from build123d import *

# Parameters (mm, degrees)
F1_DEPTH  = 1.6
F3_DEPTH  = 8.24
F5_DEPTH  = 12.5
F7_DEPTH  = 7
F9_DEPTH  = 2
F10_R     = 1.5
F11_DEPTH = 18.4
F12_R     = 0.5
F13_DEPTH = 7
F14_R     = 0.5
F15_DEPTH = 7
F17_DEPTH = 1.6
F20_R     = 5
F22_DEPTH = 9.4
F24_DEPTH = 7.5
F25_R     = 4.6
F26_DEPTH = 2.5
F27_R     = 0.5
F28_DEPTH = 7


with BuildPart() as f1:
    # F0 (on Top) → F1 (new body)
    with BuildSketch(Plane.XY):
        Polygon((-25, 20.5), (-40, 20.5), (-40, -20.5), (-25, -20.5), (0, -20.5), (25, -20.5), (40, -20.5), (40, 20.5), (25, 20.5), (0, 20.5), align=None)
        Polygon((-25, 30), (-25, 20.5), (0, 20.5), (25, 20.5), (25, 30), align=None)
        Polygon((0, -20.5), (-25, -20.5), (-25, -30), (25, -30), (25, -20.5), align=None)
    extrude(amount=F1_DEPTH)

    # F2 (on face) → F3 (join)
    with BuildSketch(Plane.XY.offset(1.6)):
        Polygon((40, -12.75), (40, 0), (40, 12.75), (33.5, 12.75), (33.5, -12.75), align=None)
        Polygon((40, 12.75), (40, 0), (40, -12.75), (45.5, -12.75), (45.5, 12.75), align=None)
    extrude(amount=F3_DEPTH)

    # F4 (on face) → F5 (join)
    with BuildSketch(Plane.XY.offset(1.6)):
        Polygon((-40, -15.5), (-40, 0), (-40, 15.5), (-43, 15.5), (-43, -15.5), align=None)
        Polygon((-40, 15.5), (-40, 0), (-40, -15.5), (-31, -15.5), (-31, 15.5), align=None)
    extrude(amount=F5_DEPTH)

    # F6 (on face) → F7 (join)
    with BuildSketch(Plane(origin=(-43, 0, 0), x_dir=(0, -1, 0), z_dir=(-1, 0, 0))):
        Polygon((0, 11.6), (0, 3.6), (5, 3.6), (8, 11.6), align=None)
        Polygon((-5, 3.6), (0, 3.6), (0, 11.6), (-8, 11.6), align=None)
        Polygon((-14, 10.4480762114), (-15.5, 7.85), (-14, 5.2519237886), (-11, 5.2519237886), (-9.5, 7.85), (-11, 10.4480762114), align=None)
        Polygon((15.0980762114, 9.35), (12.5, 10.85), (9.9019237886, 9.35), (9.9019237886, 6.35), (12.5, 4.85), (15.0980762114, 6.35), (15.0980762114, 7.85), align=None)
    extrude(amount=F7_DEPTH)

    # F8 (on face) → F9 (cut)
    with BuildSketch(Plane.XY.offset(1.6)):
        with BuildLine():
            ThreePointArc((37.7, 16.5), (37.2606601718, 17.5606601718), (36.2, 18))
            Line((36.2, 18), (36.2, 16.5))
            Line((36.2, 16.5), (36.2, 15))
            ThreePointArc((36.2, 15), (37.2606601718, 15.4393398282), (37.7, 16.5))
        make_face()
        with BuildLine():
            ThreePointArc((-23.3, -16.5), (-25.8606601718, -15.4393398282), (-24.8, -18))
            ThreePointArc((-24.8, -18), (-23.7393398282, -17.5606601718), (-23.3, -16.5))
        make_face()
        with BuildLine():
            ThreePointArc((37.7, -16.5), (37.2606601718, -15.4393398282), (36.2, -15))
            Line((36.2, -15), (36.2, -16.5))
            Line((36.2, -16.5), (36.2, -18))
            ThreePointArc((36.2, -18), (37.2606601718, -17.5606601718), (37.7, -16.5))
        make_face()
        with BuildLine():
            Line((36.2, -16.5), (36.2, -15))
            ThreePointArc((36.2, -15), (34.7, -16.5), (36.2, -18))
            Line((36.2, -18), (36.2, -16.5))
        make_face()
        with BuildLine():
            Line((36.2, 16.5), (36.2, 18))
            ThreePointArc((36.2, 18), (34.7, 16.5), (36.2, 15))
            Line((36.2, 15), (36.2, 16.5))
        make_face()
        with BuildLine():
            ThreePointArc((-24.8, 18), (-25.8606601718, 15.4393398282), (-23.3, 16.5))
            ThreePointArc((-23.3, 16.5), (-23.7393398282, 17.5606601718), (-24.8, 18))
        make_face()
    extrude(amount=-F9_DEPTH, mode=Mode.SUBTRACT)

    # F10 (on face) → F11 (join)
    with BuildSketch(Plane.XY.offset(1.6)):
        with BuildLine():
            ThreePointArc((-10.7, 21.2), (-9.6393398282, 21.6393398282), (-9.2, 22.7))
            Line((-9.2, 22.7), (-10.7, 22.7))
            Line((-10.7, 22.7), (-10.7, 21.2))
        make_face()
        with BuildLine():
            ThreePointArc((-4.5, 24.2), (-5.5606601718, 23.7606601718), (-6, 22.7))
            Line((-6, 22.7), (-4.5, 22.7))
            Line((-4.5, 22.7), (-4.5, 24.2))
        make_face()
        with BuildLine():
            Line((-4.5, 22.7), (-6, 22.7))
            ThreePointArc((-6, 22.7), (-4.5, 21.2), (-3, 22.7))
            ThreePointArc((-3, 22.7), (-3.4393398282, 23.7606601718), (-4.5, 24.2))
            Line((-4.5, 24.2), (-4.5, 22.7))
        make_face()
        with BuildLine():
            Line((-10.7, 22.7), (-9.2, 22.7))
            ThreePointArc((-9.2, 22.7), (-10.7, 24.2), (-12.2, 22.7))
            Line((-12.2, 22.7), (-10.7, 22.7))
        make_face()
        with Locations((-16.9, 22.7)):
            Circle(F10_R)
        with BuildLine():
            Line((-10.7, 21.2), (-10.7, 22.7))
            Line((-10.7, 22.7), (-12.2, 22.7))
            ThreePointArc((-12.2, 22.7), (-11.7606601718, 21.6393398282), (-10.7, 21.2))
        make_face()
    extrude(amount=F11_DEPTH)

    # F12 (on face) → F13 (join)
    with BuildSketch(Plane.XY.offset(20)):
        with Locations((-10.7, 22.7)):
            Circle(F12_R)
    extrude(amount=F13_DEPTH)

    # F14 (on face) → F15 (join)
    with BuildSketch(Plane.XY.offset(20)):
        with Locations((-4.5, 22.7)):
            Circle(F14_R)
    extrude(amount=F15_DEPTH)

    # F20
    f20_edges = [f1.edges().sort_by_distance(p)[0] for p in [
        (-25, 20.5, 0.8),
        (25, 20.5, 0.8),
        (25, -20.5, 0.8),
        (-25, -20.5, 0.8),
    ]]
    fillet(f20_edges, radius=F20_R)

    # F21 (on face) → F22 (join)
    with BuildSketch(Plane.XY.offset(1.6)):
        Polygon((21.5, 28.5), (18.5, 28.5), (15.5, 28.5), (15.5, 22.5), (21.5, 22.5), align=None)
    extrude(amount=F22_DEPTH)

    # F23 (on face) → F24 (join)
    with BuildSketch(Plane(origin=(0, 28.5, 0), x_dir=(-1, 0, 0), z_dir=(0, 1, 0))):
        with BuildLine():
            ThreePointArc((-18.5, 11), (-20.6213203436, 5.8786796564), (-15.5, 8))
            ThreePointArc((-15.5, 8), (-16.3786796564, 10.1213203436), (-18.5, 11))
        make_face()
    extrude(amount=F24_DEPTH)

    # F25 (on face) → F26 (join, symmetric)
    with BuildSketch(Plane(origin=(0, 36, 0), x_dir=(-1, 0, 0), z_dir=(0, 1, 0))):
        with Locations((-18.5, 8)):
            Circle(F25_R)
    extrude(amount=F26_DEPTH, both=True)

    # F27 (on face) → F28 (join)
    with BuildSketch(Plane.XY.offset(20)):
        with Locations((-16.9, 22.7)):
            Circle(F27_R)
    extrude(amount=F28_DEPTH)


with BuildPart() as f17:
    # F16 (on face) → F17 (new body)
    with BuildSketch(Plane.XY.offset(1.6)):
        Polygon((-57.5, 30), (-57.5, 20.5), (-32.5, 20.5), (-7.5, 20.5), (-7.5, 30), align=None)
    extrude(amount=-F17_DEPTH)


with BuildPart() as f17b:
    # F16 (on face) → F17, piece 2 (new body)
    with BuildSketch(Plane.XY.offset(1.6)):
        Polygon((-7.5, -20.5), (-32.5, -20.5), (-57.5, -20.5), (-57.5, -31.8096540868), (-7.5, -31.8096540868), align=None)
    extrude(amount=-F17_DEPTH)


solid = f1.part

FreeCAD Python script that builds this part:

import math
import FreeCAD as App
import Part
import Sketcher
Q = App.Units.Quantity


def edges_at(feature, points):
    """Names of the edges that pass closest to the given points."""
    edges = feature.Shape.Edges
    near = lambda p: min(range(len(edges)), key=lambda i: edges[i].distToShape(Part.Vertex(*p))[0])
    return sorted({f"Edge{near(p) + 1}" for p in points})


def add_polygon(sketch, points):
    """Adds a closed chain of lines whose ends are joined by coincident constraints."""
    first, n = sketch.GeometryCount, len(points)
    for a, b in zip(points, points[1:] + points[:1]):
        sketch.addGeometry(Part.LineSegment(App.Vector(*a, 0), App.Vector(*b, 0)), False)
    for i in range(n):
        sketch.addConstraint(Sketcher.Constraint("Coincident", first + i, 2, first + (i + 1) % n, 1))

doc = App.newDocument("Part")
body = doc.addObject("PartDesign::Body", "Body")

# Sketch on XY plane
sketch1 = doc.addObject("Sketcher::SketchObject", "Sketch")
body.addObject(sketch1)
sketch1.AttachmentSupport = (doc.XY_Plane, [""])
sketch1.MapMode = "FlatFace"
add_polygon(sketch1, [(-40, 20), (-40, -20), (-25, -20), (-25, -30), (25, -30), (25, -20), (40, -20), (40, 20), (25, 20), (25, 30), (-25, 30), (-25, 20)])  # lines 0-11
sketch1.addConstraint([
    Sketcher.Constraint("Vertical", 0),
    Sketcher.Constraint("Horizontal", 1),
    Sketcher.Constraint("Vertical", 2),
    Sketcher.Constraint("Horizontal", 3),
    Sketcher.Constraint("Vertical", 4),
    Sketcher.Constraint("Horizontal", 5),
    Sketcher.Constraint("Vertical", 6),
    Sketcher.Constraint("Horizontal", 7),
    Sketcher.Constraint("Vertical", 8),
    Sketcher.Constraint("Horizontal", 9),
    Sketcher.Constraint("Vertical", 10),
    Sketcher.Constraint("Horizontal", 11),
    Sketcher.Constraint("Symmetric", 0, 2, 6, 2, -1, 1),
    Sketcher.Constraint("Symmetric", 2, 2, 8, 2, -1, 1),
    Sketcher.Constraint("Symmetric", 4, 2, 10, 2, -1, 1),
    Sketcher.Constraint("Symmetric", 1, 2, 4, 2, -2),
    Sketcher.Constraint("DistanceX", 1, 1, 1, 2, Q("15 mm")),
    Sketcher.Constraint("DistanceX", 3, 1, 3, 2, Q("50 mm")),
    Sketcher.Constraint("DistanceY", 0, 2, 0, 1, Q("41 mm")),
    Sketcher.Constraint("DistanceY", 2, 2, 2, 1, Q("9.5 mm")),
])
pad1 = doc.addObject("PartDesign::Pad", "Pad")
body.addObject(pad1)
pad1.Profile = sketch1
pad1.Length = 1.6

# Sketch on XY plane
sketch2 = doc.addObject("Sketcher::SketchObject", "Sketch001")
body.addObject(sketch2)
sketch2.AttachmentSupport = (doc.XY_Plane, [""])
sketch2.MapMode = "FlatFace"
sketch2.AttachmentOffset = App.Placement(App.Vector(0, 0, 1.6), App.Rotation())
add_polygon(sketch2, [(34, 13), (34, -13), (46, -13), (46, 13)])  # lines 0-3
sketch2.addConstraint([
    Sketcher.Constraint("Vertical", 0),
    Sketcher.Constraint("Horizontal", 1),
    Sketcher.Constraint("Vertical", 2),
    Sketcher.Constraint("Horizontal", 3),
    Sketcher.Constraint("DistanceX", 1, 1, 1, 2, Q("12 mm")),
    Sketcher.Constraint("DistanceY", 0, 2, 0, 1, Q("25.5 mm")),
    Sketcher.Constraint("DistanceX", -1, 1, 0, 2, Q("33.5 mm")),
    Sketcher.Constraint("DistanceY", 0, 2, -1, 1, Q("12.75 mm")),
])
pad2 = doc.addObject("PartDesign::Pad", "Pad001")
body.addObject(pad2)
pad2.Profile = sketch2
pad2.Length = 8.24

# Sketch on XY plane
sketch3 = doc.addObject("Sketcher::SketchObject", "Sketch002")
body.addObject(sketch3)
sketch3.AttachmentSupport = (doc.XY_Plane, [""])
sketch3.MapMode = "FlatFace"
sketch3.AttachmentOffset = App.Placement(App.Vector(0, 0, 1.6), App.Rotation())
add_polygon(sketch3, [(-43, 16), (-43, -16), (-31, -16), (-31, 16)])  # lines 0-3
sketch3.addConstraint([
    Sketcher.Constraint("Vertical", 0),
    Sketcher.Constraint("Horizontal", 1),
    Sketcher.Constraint("Vertical", 2),
    Sketcher.Constraint("Horizontal", 3),
    Sketcher.Constraint("DistanceX", 1, 1, 1, 2, Q("12 mm")),
    Sketcher.Constraint("DistanceY", 0, 2, 0, 1, Q("31 mm")),
    Sketcher.Constraint("DistanceX", 0, 2, -1, 1, Q("43 mm")),
    Sketcher.Constraint("DistanceY", 0, 2, -1, 1, Q("15.5 mm")),
])
pad3 = doc.addObject("PartDesign::Pad", "Pad002")
body.addObject(pad3)
pad3.Profile = sketch3
pad3.Length = 12.5

# Sketch on YZ plane
sketch4 = doc.addObject("Sketcher::SketchObject", "Sketch003")
body.addObject(sketch4)
sketch4.AttachmentSupport = (doc.YZ_Plane, [""])
sketch4.MapMode = "FlatFace"
sketch4.AttachmentOffset = App.Placement(App.Vector(0, 0, -43), App.Rotation())
add_polygon(sketch4, [(-5, 3.6), (-8, 11.6), (8, 11.6), (5, 3.6)])  # lines 0-3
add_polygon(sketch4, [(14, 10.4), (15.5, 7.8), (14, 5.3), (11, 5.3), (9.5, 7.8), (11, 10.4)])  # lines 4-9
add_polygon(sketch4, [(-15.1, 9.3), (-12.5, 10.8), (-9.9, 9.3), (-9.9, 6.3), (-12.5, 4.8), (-15.1, 6.3)])  # lines 10-15
sketch4.addConstraint([
    Sketcher.Constraint("Horizontal", 1),
    Sketcher.Constraint("Horizontal", 3),
    Sketcher.Constraint("Horizontal", 6),
    Sketcher.Constraint("Horizontal", 9),
    Sketcher.Constraint("Vertical", 12),
    Sketcher.Constraint("Vertical", 15),
    Sketcher.Constraint("Parallel", 4, 7),
    Sketcher.Constraint("Parallel", 5, 8),
    Sketcher.Constraint("Perpendicular", 7, 10),
    Sketcher.Constraint("Perpendicular", 8, 11),
    Sketcher.Constraint("Parallel", 10, 13),
    Sketcher.Constraint("Parallel", 11, 14),
    Sketcher.Constraint("Horizontal", 4, 2, 7, 2),
    Sketcher.Constraint("Horizontal", 12, 2, 14, 2),
    Sketcher.Constraint("Horizontal", 11, 2, 15, 2),
    Sketcher.Constraint("Vertical", 6, 2, 8, 2),
    Sketcher.Constraint("Vertical", 5, 2, 9, 2),
    Sketcher.Constraint("Equal", 9, 12),
    Sketcher.Constraint("Equal", 0, 2),
    Sketcher.Constraint("Equal", 8, 10),
    Sketcher.Constraint("DistanceX", 1, 1, 1, 2, Q("16 mm")),
    Sketcher.Constraint("DistanceX", 3, 2, 3, 1, Q("10 mm")),
    Sketcher.Constraint("DistanceX", 6, 2, 6, 1, Q("3 mm")),
    Sketcher.Constraint("Angle", 4, Q("-60 deg")),
    Sketcher.Constraint("Distance", 4, Q("3 mm")),
    Sketcher.Constraint("DistanceX", 0, 2, -1, 1, Q("8 mm")),
    Sketcher.Constraint("DistanceX", -1, 1, 5, 2, Q("14 mm")),
    Sketcher.Constraint("DistanceY", 2, 2, 1, 2, Q("8 mm")),
    Sketcher.Constraint("DistanceX", 10, 2, 7, 2, Q("22 mm")),
    Sketcher.Constraint("DistanceY", 7, 2, 10, 2, Q("3 mm")),
    Sketcher.Constraint("DistanceY", -1, 1, 0, 2, Q("11.6 mm")),
    Sketcher.Constraint("DistanceY", -1, 1, 4, 2, Q("7.85 mm")),
])
pad4 = doc.addObject("PartDesign::Pad", "Pad003")
body.addObject(pad4)
pad4.Profile = sketch4
pad4.Length = 7
pad4.Reversed = True

# Sketch on XY plane
sketch5 = doc.addObject("Sketcher::SketchObject", "Sketch004")
body.addObject(sketch5)
sketch5.AttachmentSupport = (doc.XY_Plane, [""])
sketch5.MapMode = "FlatFace"
sketch5.AttachmentOffset = App.Placement(App.Vector(0, 0, 1.6), App.Rotation())
sketch5.addGeometry([
    Part.ArcOfCircle(Part.Circle(App.Vector(36.2, 16.5, 0), App.Vector(0, 0, 1), 1.5), math.radians(0), math.radians(90)),  # 0
    Part.ArcOfCircle(Part.Circle(App.Vector(36.2, 16.5, 0), App.Vector(0, 0, 1), 1.5), math.radians(90), math.radians(270)),  # 1
    Part.ArcOfCircle(Part.Circle(App.Vector(36.2, 16.5, 0), App.Vector(0, 0, 1), 1.5), math.radians(-90), math.radians(0)),  # 2
    Part.ArcOfCircle(Part.Circle(App.Vector(-24.8, -16.5, 0), App.Vector(0, 0, 1), 1.5), math.radians(0), math.radians(270)),  # 3
    Part.ArcOfCircle(Part.Circle(App.Vector(-24.8, -16.5, 0), App.Vector(0, 0, 1), 1.5), math.radians(-90), math.radians(0)),  # 4
    Part.ArcOfCircle(Part.Circle(App.Vector(36.2, -16.5, 0), App.Vector(0, 0, 1), 1.5), math.radians(0), math.radians(90)),  # 5
    Part.ArcOfCircle(Part.Circle(App.Vector(36.2, -16.5, 0), App.Vector(0, 0, 1), 1.5), math.radians(90), math.radians(270)),  # 6
    Part.ArcOfCircle(Part.Circle(App.Vector(36.2, -16.5, 0), App.Vector(0, 0, 1), 1.5), math.radians(-90), math.radians(0)),  # 7
    Part.ArcOfCircle(Part.Circle(App.Vector(-24.8, 16.5, 0), App.Vector(0, 0, 1), 1.5), math.radians(90), math.radians(360)),  # 8
    Part.ArcOfCircle(Part.Circle(App.Vector(-24.8, 16.5, 0), App.Vector(0, 0, 1), 1.5), math.radians(0), math.radians(90)),  # 9
], False)
sketch5.addConstraint([
    Sketcher.Constraint("Tangent", 0, 2, 1, 1),
    Sketcher.Constraint("Tangent", 1, 2, 2, 1),
    Sketcher.Constraint("Tangent", 2, 2, 0, 1),
    Sketcher.Constraint("Tangent", 3, 1, 4, 2),
    Sketcher.Constraint("Coincident", 4, 1, 3, 2),
    Sketcher.Constraint("Tangent", 5, 2, 6, 1),
    Sketcher.Constraint("Tangent", 6, 2, 7, 1),
    Sketcher.Constraint("Tangent", 7, 2, 5, 1),
    Sketcher.Constraint("Tangent", 8, 1, 9, 2),
    Sketcher.Constraint("Coincident", 9, 1, 8, 2),
    Sketcher.Constraint("Equal", 2, 3),
    Sketcher.Constraint("Equal", 4, 5),
    Sketcher.Constraint("Equal", 7, 8),
    Sketcher.Constraint("Symmetric", 0, 3, 5, 3, -1),
    Sketcher.Constraint("Symmetric", 3, 3, 8, 3, -1),
    Sketcher.Constraint("Horizontal", 4, 3, 5, 3),
    Sketcher.Constraint("Horizontal", 9, 3, 2, 2),
    Sketcher.Constraint("Horizontal", 7, 3, 3, 1),
    Sketcher.Constraint("Horizontal", 3, 1, 7, 2),
    Sketcher.Constraint("Horizontal", 2, 2, 9, 1),
    Sketcher.Constraint("Vertical", 7, 3, 0, 2),
    Sketcher.Constraint("Vertical", 0, 2, 1, 2),
    Sketcher.Constraint("Vertical", 9, 3, 4, 1),
    Sketcher.Constraint("Vertical", 1, 2, 5, 2),
    Sketcher.Constraint("Vertical", 5, 2, 6, 2),
    Sketcher.Constraint("Vertical", 4, 1, 8, 1),
    Sketcher.Constraint("Radius", 0, Q("1.5 mm")),
    Sketcher.Constraint("DistanceY", -1, 1, 0, 2, Q("18 mm")),
    Sketcher.Constraint("DistanceX", 3, 3, 0, 3, Q("61 mm")),
    Sketcher.Constraint("DistanceX", -1, 1, 0, 3, Q("36.2 mm")),
])
pocket1 = doc.addObject("PartDesign::Pocket", "Pocket")
body.addObject(pocket1)
pocket1.Profile = sketch5
pocket1.Length = 2

# Sketch on XY plane
sketch6 = doc.addObject("Sketcher::SketchObject", "Sketch005")
body.addObject(sketch6)
sketch6.AttachmentSupport = (doc.XY_Plane, [""])
sketch6.MapMode = "FlatFace"
sketch6.AttachmentOffset = App.Placement(App.Vector(0, 0, 1.6), App.Rotation())
sketch6.addGeometry([
    Part.ArcOfCircle(Part.Circle(App.Vector(-10.7, 22.7, 0), App.Vector(0, 0, 1), 1.5), math.radians(-90), math.radians(0)),  # 0
    Part.ArcOfCircle(Part.Circle(App.Vector(-10.7, 22.7, 0), App.Vector(0, 0, 1), 1.5), math.radians(0), math.radians(180)),  # 1
    Part.ArcOfCircle(Part.Circle(App.Vector(-10.7, 22.7, 0), App.Vector(0, 0, 1), 1.5), math.radians(180), math.radians(270)),  # 2
    Part.ArcOfCircle(Part.Circle(App.Vector(-4.5, 22.7, 0), App.Vector(0, 0, 1), 1.5), math.radians(90), math.radians(180)),  # 3
    Part.ArcOfCircle(Part.Circle(App.Vector(-4.5, 22.7, 0), App.Vector(0, 0, 1), 1.5), math.radians(180), math.radians(360)),  # 4
    Part.ArcOfCircle(Part.Circle(App.Vector(-4.5, 22.7, 0), App.Vector(0, 0, 1), 1.5), math.radians(0), math.radians(90)),  # 5
    Part.Circle(App.Vector(-16.9, 22.7, 0), App.Vector(0, 0, 1), 1.5),  # 6
], False)
sketch6.addConstraint([
    Sketcher.Constraint("Tangent", 0, 2, 1, 1),
    Sketcher.Constraint("Tangent", 1, 2, 2, 1),
    Sketcher.Constraint("Tangent", 2, 2, 0, 1),
    Sketcher.Constraint("Tangent", 3, 2, 4, 1),
    Sketcher.Constraint("Tangent", 4, 2, 5, 1),
    Sketcher.Constraint("Tangent", 5, 2, 3, 1),
    Sketcher.Constraint("Equal", 2, 3),
    Sketcher.Constraint("Equal", 5, 6),
    Sketcher.Constraint("Horizontal", 2, 3, 3, 3),
    Sketcher.Constraint("Horizontal", 5, 3, 6, 3),
    Sketcher.Constraint("Horizontal", 6, 3, 0, 2),
    Sketcher.Constraint("Horizontal", 0, 2, 1, 2),
    Sketcher.Constraint("Horizontal", 1, 2, 3, 2),
    Sketcher.Constraint("Horizontal", 3, 2, 4, 2),
    Sketcher.Constraint("Vertical", 1, 3, 2, 2),
    Sketcher.Constraint("Vertical", 4, 3, 5, 2),
    Sketcher.Constraint("Diameter", 6, Q("3 mm")),
    Sketcher.Constraint("DistanceX", 3, 2, -1, 1, Q("6 mm")),
    Sketcher.Constraint("DistanceX", 0, 3, -1, 1, Q("10.7 mm")),
    Sketcher.Constraint("DistanceY", -1, 1, 0, 3, Q("22.7 mm")),
    Sketcher.Constraint("DistanceX", 6, 3, -1, 1, Q("16.9 mm")),
])
pad5 = doc.addObject("PartDesign::Pad", "Pad004")
body.addObject(pad5)
pad5.Profile = sketch6
pad5.Length = 18.4

# Sketch on XY plane
sketch7 = doc.addObject("Sketcher::SketchObject", "Sketch006")
body.addObject(sketch7)
sketch7.AttachmentSupport = (doc.XY_Plane, [""])
sketch7.MapMode = "FlatFace"
sketch7.AttachmentOffset = App.Placement(App.Vector(0, 0, 20), App.Rotation())
sketch7.addGeometry(Part.Circle(App.Vector(-10.7, 22.7, 0), App.Vector(0, 0, 1), 0.5), False)
sketch7.addConstraint([
    Sketcher.Constraint("Diameter", 0, Q("1 mm")),
    Sketcher.Constraint("DistanceX", 0, 3, -1, 1, Q("10.7 mm")),
    Sketcher.Constraint("DistanceY", -1, 1, 0, 3, Q("22.7 mm")),
])
pad6 = doc.addObject("PartDesign::Pad", "Pad005")
body.addObject(pad6)
pad6.Profile = sketch7
pad6.Length = 7

# Sketch on XY plane
sketch8 = doc.addObject("Sketcher::SketchObject", "Sketch007")
body.addObject(sketch8)
sketch8.AttachmentSupport = (doc.XY_Plane, [""])
sketch8.MapMode = "FlatFace"
sketch8.AttachmentOffset = App.Placement(App.Vector(0, 0, 20), App.Rotation())
sketch8.addGeometry(Part.Circle(App.Vector(-4.5, 22.7, 0), App.Vector(0, 0, 1), 0.5), False)
sketch8.addConstraint([
    Sketcher.Constraint("Diameter", 0, Q("1 mm")),
    Sketcher.Constraint("DistanceX", 0, 3, -1, 1, Q("4.5 mm")),
    Sketcher.Constraint("DistanceY", -1, 1, 0, 3, Q("22.7 mm")),
])
pad7 = doc.addObject("PartDesign::Pad", "Pad006")
body.addObject(pad7)
pad7.Profile = sketch8
pad7.Length = 7
doc.recompute()

fillet = doc.addObject("PartDesign::Fillet", "Fillet")
body.addObject(fillet)
fillet.Base = (pad7, edges_at(pad7, [
    (-25, 20.5, 0.8),
    (25, 20.5, 0.8),
    (25, -20.5, 0.8),
    (-25, -20.5, 0.8),
]))
fillet.Radius = 5

# Sketch on XY plane
sketch9 = doc.addObject("Sketcher::SketchObject", "Sketch008")
body.addObject(sketch9)
sketch9.AttachmentSupport = (doc.XY_Plane, [""])
sketch9.MapMode = "FlatFace"
sketch9.AttachmentOffset = App.Placement(App.Vector(0, 0, 1.6), App.Rotation())
add_polygon(sketch9, [(22, 28), (16, 28), (16, 22), (22, 22)])  # lines 0-3
sketch9.addConstraint([
    Sketcher.Constraint("Horizontal", 0),
    Sketcher.Constraint("Vertical", 1),
    Sketcher.Constraint("Horizontal", 2),
    Sketcher.Constraint("Vertical", 3),
    Sketcher.Constraint("Equal", 2, 1),
    Sketcher.Constraint("DistanceX", 0, 2, 0, 1, Q("6 mm")),
    Sketcher.Constraint("DistanceX", -1, 1, 0, 2, Q("15.5 mm")),
    Sketcher.Constraint("DistanceY", -1, 1, 0, 2, Q("28.5 mm")),
])
pad8 = doc.addObject("PartDesign::Pad", "Pad007")
body.addObject(pad8)
pad8.Profile = sketch9
pad8.Length = 9.4

# Sketch on XZ plane
sketch10 = doc.addObject("Sketcher::SketchObject", "Sketch009")
body.addObject(sketch10)
sketch10.AttachmentSupport = (doc.XZ_Plane, [""])
sketch10.MapMode = "FlatFace"
sketch10.AttachmentOffset = App.Placement(App.Vector(0, 0, -28.5), App.Rotation())
sketch10.addGeometry([
    Part.ArcOfCircle(Part.Circle(App.Vector(18.5, 8, 0), App.Vector(0, 0, 1), 3), math.radians(180), math.radians(450)),
    Part.ArcOfCircle(Part.Circle(App.Vector(18.5, 8, 0), App.Vector(0, 0, 1), 3), math.radians(90), math.radians(180)),
], False)
sketch10.addConstraint([
    Sketcher.Constraint("Tangent", 0, 1, 1, 2),
    Sketcher.Constraint("Coincident", 1, 1, 0, 2),
    Sketcher.Constraint("Horizontal", 1, 3, 0, 1),
    Sketcher.Constraint("Vertical", 0, 3, 1, 1),
    Sketcher.Constraint("Radius", 0, Q("3 mm")),
    Sketcher.Constraint("DistanceY", -1, 1, 0, 3, Q("8 mm")),
    Sketcher.Constraint("DistanceX", -1, 1, 0, 3, Q("18.5 mm")),
])
pad9 = doc.addObject("PartDesign::Pad", "Pad008")
body.addObject(pad9)
pad9.Profile = sketch10
pad9.Length = 7.5
pad9.Reversed = True

# Sketch on XZ plane
sketch11 = doc.addObject("Sketcher::SketchObject", "Sketch010")
body.addObject(sketch11)
sketch11.AttachmentSupport = (doc.XZ_Plane, [""])
sketch11.MapMode = "FlatFace"
sketch11.AttachmentOffset = App.Placement(App.Vector(0, 0, -36), App.Rotation())
sketch11.addGeometry(Part.Circle(App.Vector(18.5, 8, 0), App.Vector(0, 0, 1), 4.6), False)
sketch11.addConstraint([
    Sketcher.Constraint("Diameter", 0, Q("9.2 mm")),
    Sketcher.Constraint("DistanceY", -1, 1, 0, 3, Q("8 mm")),
    Sketcher.Constraint("DistanceX", -1, 1, 0, 3, Q("18.5 mm")),
])
pad10 = doc.addObject("PartDesign::Pad", "Pad009")
body.addObject(pad10)
pad10.Profile = sketch11
pad10.Length = 5
pad10.Midplane = True

# Sketch on XY plane
sketch12 = doc.addObject("Sketcher::SketchObject", "Sketch011")
body.addObject(sketch12)
sketch12.AttachmentSupport = (doc.XY_Plane, [""])
sketch12.MapMode = "FlatFace"
sketch12.AttachmentOffset = App.Placement(App.Vector(0, 0, 20), App.Rotation())
sketch12.addGeometry(Part.Circle(App.Vector(-16.9, 22.7, 0), App.Vector(0, 0, 1), 0.5), False)
sketch12.addConstraint([
    Sketcher.Constraint("Diameter", 0, Q("1 mm")),
    Sketcher.Constraint("DistanceX", 0, 3, -1, 1, Q("16.9 mm")),
    Sketcher.Constraint("DistanceY", -1, 1, 0, 3, Q("22.7 mm")),
])
pad11 = doc.addObject("PartDesign::Pad", "Pad010")
body.addObject(pad11)
pad11.Profile = sketch12
pad11.Length = 7
body2 = doc.addObject("PartDesign::Body", "Body001")

# Sketch on XY plane
sketch13 = doc.addObject("Sketcher::SketchObject", "Sketch012")
body2.addObject(sketch13)
sketch13.AttachmentSupport = (doc.getObject("XY_Plane001"), [""])
sketch13.MapMode = "FlatFace"
sketch13.AttachmentOffset = App.Placement(App.Vector(0, 0, 1.6), App.Rotation())
add_polygon(sketch13, [(-58, 30), (-58, 20), (-8, 20), (-8, 30)])  # lines 0-3
sketch13.addConstraint([
    Sketcher.Constraint("Vertical", 0),
    Sketcher.Constraint("Horizontal", 1),
    Sketcher.Constraint("Vertical", 2),
    Sketcher.Constraint("Horizontal", 3),
    Sketcher.Constraint("DistanceX", 1, 1, 1, 2, Q("50 mm")),
    Sketcher.Constraint("DistanceY", 0, 2, 0, 1, Q("9.5 mm")),
    Sketcher.Constraint("DistanceY", -1, 1, 2, 2, Q("30 mm")),
    Sketcher.Constraint("DistanceX", 0, 2, -1, 1, Q("57.5 mm")),
])
pad12 = doc.addObject("PartDesign::Pad", "Pad011")
body2.addObject(pad12)
pad12.Profile = sketch13
pad12.Length = 1.6
pad12.Reversed = True
body3 = doc.addObject("PartDesign::Body", "Body002")

# Sketch on XY plane
sketch14 = doc.addObject("Sketcher::SketchObject", "Sketch013")
body3.addObject(sketch14)
sketch14.AttachmentSupport = (doc.getObject("XY_Plane002"), [""])
sketch14.MapMode = "FlatFace"
sketch14.AttachmentOffset = App.Placement(App.Vector(0, 0, 1.6), App.Rotation())
add_polygon(sketch14, [(-8, -20), (-58, -20), (-58, -32), (-8, -32)])  # lines 0-3
sketch14.addConstraint([
    Sketcher.Constraint("Horizontal", 0),
    Sketcher.Constraint("Vertical", 1),
    Sketcher.Constraint("Horizontal", 2),
    Sketcher.Constraint("Vertical", 3),
    Sketcher.Constraint("DistanceX", 0, 2, 0, 1, Q("50 mm")),
    Sketcher.Constraint("DistanceX", 0, 2, -1, 1, Q("57.5 mm")),
    Sketcher.Constraint("DistanceY", 0, 2, -1, 1, Q("20.5 mm")),
    Sketcher.Constraint("DistanceY", 1, 2, 1, 1, Q("11.309654 mm")),
])
pad13 = doc.addObject("PartDesign::Pad", "Pad012")
body3.addObject(pad13)
pad13.Profile = sketch14
pad13.Length = 1.6
pad13.Reversed = True
body2.Visibility = False
body3.Visibility = False

doc.recompute()
